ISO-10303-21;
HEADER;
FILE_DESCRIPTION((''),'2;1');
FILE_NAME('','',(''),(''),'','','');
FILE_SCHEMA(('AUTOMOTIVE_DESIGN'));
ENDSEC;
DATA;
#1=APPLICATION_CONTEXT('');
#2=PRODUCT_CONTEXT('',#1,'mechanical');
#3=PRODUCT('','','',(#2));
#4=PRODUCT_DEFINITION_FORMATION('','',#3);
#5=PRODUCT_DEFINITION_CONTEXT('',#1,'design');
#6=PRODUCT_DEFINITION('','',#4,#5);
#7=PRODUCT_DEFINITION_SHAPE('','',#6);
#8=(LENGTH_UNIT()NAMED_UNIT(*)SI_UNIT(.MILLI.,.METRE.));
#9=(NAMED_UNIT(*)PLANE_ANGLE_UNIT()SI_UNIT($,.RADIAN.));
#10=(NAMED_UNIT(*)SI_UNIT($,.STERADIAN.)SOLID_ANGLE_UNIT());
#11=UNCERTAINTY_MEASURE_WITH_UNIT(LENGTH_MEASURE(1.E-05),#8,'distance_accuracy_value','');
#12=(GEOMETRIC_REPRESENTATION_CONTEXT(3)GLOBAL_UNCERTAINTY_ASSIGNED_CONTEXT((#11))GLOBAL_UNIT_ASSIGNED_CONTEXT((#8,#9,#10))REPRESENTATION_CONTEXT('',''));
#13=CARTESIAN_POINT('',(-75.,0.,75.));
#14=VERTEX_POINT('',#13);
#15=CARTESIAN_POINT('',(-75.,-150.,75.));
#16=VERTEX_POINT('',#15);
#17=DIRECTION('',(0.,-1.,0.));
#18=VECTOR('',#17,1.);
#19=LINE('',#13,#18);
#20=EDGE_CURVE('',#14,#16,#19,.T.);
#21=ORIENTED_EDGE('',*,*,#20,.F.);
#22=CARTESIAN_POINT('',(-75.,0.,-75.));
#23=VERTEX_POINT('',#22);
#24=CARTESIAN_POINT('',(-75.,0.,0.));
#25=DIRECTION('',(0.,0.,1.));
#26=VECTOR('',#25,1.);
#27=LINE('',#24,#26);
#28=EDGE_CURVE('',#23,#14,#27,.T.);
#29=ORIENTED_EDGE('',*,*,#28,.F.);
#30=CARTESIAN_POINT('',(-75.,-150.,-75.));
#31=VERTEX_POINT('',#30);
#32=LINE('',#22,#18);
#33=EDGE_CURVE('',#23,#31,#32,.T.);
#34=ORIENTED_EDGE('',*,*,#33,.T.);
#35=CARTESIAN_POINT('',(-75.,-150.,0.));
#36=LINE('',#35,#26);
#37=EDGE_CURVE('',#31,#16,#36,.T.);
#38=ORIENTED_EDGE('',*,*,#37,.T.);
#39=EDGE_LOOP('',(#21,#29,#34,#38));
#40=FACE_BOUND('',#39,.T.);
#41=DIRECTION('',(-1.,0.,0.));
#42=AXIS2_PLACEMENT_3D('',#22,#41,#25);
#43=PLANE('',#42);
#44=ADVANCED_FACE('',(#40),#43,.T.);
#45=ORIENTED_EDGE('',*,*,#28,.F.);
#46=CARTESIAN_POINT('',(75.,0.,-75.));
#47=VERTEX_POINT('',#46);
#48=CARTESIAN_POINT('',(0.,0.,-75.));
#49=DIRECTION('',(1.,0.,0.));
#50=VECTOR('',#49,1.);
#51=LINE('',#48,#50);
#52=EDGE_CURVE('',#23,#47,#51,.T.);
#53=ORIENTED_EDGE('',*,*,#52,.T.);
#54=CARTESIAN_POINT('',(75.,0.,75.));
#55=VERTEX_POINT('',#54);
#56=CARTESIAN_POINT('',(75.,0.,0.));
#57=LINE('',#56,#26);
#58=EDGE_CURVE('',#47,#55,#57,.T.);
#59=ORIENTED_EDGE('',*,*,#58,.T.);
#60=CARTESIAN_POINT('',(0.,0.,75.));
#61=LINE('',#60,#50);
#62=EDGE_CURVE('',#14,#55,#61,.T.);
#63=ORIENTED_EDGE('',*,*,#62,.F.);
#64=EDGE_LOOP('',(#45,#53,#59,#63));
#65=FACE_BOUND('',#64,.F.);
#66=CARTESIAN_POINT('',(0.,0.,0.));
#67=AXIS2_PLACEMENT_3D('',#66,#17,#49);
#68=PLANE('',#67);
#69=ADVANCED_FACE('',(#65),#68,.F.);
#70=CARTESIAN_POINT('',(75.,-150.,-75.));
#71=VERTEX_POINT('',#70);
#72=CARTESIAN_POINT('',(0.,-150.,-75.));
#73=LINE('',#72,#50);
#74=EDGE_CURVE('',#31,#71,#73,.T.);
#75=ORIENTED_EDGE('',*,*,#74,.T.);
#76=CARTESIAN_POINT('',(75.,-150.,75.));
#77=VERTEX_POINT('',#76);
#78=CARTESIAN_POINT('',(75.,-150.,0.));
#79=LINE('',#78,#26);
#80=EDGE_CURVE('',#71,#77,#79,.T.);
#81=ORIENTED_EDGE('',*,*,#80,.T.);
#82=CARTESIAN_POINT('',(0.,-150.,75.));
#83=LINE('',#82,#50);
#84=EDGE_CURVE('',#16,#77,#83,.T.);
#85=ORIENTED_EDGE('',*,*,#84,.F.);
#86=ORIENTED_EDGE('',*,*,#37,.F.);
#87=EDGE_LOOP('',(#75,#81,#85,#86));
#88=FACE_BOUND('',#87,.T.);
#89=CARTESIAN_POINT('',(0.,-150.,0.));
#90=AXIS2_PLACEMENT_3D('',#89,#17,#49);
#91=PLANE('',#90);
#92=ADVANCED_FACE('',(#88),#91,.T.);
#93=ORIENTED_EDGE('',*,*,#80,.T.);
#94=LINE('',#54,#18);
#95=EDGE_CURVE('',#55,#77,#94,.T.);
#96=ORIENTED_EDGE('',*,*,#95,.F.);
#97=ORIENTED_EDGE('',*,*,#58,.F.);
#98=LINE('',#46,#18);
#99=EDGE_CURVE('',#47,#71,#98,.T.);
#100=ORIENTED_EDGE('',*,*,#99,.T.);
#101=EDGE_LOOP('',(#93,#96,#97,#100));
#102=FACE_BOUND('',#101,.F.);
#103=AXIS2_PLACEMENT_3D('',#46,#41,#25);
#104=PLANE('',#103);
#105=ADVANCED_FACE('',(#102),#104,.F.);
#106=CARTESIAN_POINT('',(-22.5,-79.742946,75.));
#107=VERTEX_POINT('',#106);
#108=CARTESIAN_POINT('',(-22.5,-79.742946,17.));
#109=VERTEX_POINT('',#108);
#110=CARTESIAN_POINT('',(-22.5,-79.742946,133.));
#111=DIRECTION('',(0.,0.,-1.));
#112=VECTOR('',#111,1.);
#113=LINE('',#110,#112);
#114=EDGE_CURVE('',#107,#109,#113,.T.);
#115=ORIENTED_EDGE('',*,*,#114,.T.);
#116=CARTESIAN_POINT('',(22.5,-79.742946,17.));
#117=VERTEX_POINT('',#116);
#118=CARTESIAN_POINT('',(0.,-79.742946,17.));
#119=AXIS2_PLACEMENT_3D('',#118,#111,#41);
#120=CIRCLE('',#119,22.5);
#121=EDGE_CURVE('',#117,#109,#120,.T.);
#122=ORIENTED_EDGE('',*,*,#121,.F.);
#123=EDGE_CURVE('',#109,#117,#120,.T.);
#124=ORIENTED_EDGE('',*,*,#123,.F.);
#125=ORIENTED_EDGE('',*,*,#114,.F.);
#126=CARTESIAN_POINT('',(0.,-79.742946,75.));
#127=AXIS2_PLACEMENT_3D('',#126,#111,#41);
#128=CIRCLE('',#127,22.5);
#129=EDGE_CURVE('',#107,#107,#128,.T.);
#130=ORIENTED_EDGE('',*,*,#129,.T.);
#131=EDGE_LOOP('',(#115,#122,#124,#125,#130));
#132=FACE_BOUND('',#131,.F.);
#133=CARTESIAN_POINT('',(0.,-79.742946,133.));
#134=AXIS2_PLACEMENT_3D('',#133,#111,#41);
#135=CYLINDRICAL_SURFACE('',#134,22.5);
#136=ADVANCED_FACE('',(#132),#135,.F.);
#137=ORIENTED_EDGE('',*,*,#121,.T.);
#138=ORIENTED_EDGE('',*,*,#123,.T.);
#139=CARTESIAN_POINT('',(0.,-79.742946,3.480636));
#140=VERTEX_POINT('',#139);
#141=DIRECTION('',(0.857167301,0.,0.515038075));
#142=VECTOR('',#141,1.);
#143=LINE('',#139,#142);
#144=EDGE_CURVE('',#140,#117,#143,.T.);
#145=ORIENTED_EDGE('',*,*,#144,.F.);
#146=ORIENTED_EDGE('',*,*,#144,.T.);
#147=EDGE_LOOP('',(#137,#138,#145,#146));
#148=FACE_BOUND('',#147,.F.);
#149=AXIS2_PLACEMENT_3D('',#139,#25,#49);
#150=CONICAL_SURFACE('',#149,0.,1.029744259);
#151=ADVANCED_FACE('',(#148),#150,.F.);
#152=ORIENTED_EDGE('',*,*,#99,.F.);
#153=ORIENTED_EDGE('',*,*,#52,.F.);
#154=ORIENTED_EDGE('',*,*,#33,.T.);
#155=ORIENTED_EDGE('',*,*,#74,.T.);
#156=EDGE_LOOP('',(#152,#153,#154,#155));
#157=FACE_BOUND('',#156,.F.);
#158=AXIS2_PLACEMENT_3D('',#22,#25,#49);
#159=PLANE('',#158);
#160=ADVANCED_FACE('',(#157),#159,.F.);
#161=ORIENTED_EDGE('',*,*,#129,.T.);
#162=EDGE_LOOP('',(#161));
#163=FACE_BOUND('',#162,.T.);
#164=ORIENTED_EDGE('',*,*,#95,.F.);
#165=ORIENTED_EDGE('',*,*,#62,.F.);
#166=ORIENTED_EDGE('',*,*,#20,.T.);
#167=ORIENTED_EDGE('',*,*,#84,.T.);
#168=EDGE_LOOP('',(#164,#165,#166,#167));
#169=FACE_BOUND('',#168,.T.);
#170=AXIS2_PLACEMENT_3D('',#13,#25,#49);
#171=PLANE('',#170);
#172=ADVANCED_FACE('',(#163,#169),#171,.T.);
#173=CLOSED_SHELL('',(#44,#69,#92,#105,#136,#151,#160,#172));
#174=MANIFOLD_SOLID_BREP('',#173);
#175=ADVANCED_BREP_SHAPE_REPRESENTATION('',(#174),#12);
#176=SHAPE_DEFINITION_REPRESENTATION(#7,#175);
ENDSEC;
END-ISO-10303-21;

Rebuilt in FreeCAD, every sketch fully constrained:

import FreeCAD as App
import Part
import Sketcher


def add_polygon(sketch, points):
    """Adds a closed chain of lines whose ends are joined by coincident constraints."""
    first, n = sketch.GeometryCount, len(points)
    for a, b in zip(points, points[1:] + points[:1]):
        sketch.addGeometry(Part.LineSegment(App.Vector(*a, 0), App.Vector(*b, 0)), False)
    for i in range(n):
        sketch.addConstraint(Sketcher.Constraint("Coincident", first + i, 2, first + (i + 1) % n, 1))

doc = App.newDocument("Part")
body = doc.addObject("PartDesign::Body", "Body")

sketch1 = body.newObject("Sketcher::SketchObject", "Sketch")
sketch1.AttachmentSupport = (doc.getObject("XZ_Plane"), [""])
sketch1.MapMode = "FlatFace"
add_polygon(sketch1, [(-75, 75), (-75, -75), (75, -75), (75, 75)])
sketch1.addConstraint(Sketcher.Constraint("Vertical", 0))
sketch1.addConstraint(Sketcher.Constraint("Horizontal", 1))
sketch1.addConstraint(Sketcher.Constraint("Vertical", 2))
sketch1.addConstraint(Sketcher.Constraint("Horizontal", 3))
sketch1.addConstraint(Sketcher.Constraint("Symmetric", 0, 2, 2, 2, -1, 1))
sketch1.addConstraint(Sketcher.Constraint("Equal", 3, 0))
sketch1.addConstraint(Sketcher.Constraint("DistanceX", 1, 1, 1, 2, 150.0))
pad1 = body.newObject("PartDesign::Pad", "Pad")
pad1.Profile = sketch1
pad1.Length = 150

sketch2 = body.newObject("Sketcher::SketchObject", "Sketch001")
sketch2.AttachmentSupport = (doc.getObject("XY_Plane"), [""])
sketch2.MapMode = "FlatFace"
sketch2.AttachmentOffset = App.Placement(App.Vector(0, 0, 75), App.Rotation())
sketch2.addGeometry(Part.Circle(App.Vector(0, -80, 0), App.Vector(0, 0, 1), 22), False)
sketch2.addConstraint(Sketcher.Constraint("PointOnObject", 0, 3, -2))
sketch2.addConstraint(Sketcher.Constraint("Diameter", 0, 45.0))
sketch2.addConstraint(Sketcher.Constraint("DistanceY", 0, 3, -1, 1, 79.742946))
doc.recompute()
hole = body.newObject("PartDesign::Hole", "Hole")
hole.Profile = sketch2
hole.ThreadType = "None"
hole.Diameter = 45
hole.DepthType = "Dimension"
hole.Depth = 58
hole.DrillPoint = "Angled"
hole.DrillPointAngle = 118

doc.recompute()
